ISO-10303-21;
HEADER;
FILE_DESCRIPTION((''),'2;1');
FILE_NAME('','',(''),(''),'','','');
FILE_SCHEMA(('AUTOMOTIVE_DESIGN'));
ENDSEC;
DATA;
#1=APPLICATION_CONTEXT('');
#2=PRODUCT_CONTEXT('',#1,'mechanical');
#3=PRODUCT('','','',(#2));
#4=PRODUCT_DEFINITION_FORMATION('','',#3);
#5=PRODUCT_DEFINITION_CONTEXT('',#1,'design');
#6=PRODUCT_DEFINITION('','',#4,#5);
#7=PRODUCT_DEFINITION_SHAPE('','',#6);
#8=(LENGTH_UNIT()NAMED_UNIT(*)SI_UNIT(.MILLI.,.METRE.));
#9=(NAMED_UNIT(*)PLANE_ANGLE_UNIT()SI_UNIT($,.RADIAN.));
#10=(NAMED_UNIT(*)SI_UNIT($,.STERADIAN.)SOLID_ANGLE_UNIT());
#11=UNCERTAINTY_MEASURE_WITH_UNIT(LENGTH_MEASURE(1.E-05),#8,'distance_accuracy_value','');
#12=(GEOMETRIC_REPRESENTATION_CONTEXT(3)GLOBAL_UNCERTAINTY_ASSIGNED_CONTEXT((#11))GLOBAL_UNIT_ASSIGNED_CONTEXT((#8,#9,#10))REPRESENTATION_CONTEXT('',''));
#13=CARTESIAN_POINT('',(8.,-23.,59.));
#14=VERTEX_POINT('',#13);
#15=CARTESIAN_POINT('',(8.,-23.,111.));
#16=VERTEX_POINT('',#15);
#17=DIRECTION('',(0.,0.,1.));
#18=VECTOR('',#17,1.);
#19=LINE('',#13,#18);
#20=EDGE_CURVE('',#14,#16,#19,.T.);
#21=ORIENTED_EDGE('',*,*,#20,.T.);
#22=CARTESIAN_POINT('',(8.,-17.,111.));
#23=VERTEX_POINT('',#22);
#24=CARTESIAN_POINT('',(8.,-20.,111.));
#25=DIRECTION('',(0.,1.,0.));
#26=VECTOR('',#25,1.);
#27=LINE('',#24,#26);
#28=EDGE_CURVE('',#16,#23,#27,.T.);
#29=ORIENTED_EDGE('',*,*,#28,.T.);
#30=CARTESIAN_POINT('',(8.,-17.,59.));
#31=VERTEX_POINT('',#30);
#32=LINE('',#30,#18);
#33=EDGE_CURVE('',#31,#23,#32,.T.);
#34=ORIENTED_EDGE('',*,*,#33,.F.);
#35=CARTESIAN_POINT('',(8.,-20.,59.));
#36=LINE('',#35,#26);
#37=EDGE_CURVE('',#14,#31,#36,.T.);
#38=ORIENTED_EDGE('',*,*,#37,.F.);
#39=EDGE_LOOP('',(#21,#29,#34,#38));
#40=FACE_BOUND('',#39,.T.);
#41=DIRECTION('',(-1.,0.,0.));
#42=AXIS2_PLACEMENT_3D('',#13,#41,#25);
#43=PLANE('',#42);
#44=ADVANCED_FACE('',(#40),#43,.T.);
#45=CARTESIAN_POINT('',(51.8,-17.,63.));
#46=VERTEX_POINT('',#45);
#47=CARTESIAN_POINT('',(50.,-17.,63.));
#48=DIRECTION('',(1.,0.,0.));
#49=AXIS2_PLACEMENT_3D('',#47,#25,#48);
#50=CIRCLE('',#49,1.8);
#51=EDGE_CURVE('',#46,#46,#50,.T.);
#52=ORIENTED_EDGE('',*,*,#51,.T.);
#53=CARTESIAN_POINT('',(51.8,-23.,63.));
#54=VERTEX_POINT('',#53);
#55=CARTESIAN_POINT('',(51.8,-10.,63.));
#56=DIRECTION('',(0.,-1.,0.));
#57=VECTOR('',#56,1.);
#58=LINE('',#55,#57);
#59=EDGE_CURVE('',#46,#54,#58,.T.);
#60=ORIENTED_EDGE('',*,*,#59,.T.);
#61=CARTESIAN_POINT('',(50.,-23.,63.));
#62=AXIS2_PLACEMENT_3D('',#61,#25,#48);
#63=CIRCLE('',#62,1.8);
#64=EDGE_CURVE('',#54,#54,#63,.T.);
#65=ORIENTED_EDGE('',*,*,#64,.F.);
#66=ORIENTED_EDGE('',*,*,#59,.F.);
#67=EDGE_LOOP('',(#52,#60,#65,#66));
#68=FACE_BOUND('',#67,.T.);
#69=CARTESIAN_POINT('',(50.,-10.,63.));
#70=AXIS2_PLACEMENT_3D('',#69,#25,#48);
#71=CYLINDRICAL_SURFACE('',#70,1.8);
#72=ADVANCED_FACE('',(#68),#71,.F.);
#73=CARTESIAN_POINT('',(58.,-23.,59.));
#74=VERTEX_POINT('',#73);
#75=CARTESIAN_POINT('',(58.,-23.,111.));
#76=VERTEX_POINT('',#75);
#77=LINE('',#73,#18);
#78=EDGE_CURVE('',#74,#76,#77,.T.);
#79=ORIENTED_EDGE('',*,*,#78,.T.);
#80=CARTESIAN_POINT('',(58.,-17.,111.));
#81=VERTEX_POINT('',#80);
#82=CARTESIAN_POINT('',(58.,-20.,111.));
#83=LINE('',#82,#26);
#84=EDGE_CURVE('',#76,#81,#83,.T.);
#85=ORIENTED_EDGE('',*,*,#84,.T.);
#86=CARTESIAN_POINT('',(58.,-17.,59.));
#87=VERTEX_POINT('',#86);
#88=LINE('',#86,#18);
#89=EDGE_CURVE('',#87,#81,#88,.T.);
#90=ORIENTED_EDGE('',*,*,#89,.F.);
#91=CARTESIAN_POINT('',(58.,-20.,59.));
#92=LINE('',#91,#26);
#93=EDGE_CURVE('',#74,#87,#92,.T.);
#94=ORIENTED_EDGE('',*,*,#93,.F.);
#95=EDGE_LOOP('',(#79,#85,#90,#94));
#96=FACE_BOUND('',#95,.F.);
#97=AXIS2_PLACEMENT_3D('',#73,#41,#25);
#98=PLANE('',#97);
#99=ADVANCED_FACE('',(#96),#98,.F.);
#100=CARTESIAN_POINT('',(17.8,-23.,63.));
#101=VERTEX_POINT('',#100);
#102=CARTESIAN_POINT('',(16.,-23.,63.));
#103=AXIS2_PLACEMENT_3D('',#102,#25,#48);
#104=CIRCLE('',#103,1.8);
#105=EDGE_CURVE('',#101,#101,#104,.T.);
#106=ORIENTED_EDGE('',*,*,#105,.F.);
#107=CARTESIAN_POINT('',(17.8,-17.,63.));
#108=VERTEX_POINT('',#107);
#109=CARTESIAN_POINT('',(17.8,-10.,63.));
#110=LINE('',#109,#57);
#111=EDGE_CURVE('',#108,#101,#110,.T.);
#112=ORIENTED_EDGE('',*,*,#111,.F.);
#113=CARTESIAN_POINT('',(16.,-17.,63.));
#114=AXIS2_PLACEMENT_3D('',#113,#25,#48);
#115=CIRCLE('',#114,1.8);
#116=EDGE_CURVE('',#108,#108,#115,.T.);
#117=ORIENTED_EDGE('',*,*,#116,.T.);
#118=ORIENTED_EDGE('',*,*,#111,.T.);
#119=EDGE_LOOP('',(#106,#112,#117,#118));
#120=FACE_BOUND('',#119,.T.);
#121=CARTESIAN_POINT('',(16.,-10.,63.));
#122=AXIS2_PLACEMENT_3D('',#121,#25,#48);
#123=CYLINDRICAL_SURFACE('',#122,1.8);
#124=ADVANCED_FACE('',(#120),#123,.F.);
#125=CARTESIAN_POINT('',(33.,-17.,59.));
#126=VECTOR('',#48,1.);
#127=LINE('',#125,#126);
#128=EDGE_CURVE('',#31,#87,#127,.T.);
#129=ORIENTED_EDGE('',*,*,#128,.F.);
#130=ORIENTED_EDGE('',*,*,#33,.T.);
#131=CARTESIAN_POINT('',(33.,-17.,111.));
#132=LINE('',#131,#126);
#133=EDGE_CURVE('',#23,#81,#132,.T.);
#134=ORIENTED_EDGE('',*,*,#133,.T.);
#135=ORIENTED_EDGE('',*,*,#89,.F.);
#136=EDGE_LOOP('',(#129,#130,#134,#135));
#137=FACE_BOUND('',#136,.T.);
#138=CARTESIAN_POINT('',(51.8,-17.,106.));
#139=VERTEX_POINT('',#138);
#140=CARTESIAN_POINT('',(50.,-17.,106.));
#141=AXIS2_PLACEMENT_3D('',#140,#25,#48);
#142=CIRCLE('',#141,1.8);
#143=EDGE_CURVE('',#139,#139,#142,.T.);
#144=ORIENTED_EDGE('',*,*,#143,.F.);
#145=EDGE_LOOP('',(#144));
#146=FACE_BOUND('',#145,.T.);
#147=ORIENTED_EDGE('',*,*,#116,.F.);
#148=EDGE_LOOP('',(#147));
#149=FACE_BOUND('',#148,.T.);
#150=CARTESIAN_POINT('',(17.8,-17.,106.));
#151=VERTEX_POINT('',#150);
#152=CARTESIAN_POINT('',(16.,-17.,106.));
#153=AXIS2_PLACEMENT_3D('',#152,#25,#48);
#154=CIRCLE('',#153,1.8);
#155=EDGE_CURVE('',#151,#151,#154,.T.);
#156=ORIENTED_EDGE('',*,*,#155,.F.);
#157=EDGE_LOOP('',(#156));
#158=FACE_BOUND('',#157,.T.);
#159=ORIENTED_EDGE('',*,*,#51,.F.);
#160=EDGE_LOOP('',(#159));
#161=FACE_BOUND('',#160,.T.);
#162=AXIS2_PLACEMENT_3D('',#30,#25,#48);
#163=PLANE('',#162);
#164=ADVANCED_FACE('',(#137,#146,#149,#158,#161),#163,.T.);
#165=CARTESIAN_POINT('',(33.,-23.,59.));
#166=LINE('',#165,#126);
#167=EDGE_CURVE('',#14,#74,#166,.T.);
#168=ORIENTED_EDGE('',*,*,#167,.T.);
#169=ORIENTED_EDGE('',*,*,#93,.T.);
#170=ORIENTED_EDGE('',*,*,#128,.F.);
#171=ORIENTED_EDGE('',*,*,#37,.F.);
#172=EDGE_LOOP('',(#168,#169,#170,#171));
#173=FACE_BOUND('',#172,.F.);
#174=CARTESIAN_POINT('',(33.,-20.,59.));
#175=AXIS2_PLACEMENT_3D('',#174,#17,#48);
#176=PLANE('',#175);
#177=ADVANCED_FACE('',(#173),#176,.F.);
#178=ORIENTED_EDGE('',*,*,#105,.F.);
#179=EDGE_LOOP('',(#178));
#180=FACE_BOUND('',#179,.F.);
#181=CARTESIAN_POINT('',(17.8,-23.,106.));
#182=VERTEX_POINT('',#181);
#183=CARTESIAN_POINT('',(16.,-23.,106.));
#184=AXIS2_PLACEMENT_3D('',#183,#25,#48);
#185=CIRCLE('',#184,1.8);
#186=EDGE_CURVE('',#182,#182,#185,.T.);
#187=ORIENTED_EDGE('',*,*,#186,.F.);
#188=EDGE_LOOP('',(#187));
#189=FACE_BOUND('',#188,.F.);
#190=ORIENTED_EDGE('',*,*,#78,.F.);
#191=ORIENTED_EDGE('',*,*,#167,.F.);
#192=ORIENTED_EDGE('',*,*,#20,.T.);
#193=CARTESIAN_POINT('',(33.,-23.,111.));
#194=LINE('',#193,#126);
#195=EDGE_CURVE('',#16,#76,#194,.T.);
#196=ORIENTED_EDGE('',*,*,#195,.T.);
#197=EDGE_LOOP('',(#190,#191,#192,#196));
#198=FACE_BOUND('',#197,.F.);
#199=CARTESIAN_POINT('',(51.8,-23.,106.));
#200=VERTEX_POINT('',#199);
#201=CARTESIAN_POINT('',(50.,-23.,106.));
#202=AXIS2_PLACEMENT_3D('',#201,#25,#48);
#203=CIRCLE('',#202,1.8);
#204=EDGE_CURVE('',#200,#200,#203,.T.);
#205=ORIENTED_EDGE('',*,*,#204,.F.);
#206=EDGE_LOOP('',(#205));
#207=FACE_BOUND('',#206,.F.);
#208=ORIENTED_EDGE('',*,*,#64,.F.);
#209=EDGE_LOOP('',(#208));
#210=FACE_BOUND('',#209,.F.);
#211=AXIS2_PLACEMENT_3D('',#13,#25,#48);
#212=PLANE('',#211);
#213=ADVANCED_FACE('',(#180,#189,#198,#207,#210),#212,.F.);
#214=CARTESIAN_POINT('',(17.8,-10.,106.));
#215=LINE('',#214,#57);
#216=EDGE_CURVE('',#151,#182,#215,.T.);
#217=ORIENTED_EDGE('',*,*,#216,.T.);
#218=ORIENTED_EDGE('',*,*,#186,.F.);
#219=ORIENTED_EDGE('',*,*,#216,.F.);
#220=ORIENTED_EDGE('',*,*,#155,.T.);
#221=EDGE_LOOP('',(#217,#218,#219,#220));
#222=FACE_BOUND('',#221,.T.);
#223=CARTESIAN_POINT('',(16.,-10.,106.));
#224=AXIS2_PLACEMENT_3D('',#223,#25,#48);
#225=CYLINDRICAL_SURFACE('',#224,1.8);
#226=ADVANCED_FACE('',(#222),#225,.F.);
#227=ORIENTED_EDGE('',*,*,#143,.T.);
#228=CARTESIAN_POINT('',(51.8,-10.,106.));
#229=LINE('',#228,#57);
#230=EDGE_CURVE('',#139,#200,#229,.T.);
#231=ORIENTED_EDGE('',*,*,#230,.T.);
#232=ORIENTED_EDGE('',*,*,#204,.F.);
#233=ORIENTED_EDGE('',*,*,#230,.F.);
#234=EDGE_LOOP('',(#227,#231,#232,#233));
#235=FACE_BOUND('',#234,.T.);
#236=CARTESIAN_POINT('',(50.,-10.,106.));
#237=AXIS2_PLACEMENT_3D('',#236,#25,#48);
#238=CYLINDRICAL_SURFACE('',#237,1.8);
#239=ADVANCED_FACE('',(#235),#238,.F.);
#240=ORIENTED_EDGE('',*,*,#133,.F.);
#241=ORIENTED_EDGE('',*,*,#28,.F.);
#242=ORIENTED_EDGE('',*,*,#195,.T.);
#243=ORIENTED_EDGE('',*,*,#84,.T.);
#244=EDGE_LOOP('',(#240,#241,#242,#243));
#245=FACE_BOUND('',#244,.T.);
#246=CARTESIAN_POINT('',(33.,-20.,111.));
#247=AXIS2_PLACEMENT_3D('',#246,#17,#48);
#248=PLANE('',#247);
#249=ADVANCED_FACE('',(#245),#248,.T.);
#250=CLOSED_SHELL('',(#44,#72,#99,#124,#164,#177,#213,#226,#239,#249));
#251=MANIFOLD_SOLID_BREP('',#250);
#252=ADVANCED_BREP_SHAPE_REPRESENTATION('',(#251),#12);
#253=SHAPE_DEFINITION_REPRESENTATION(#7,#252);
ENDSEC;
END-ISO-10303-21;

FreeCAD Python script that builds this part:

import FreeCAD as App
import Part
import Sketcher

V = App.Vector
Q = App.Units.Quantity

doc = App.newDocument("Part")
body = doc.addObject("PartDesign::Body", "Body")

# Sketch on XY plane
sketch1 = body.newObject("Sketcher::SketchObject", "Sketch")
sketch1.AttachmentSupport = (doc.getObject("XY_Plane"), [""])
sketch1.MapMode = "FlatFace"
sketch1.addGeometry(Part.Circle(V(0, 0, 0), V(0, 0, 1), 1.8), False)
sketch1.addConstraint(Sketcher.Constraint("Coincident", 0, 3, -1, 1))
sketch1.addConstraint(Sketcher.Constraint("Diameter", 0, Q("3.6 mm")))
pad1 = body.newObject("PartDesign::Pad", "Pad")
pad1.Profile = sketch1
pad1.Length = 34
body2 = doc.addObject("PartDesign::Body", "Body001")
doc.recompute()

body.Placement = App.Placement(V(0, 0, 0), App.Rotation(V(1, 0, 0), 90))
boolean = body2.newObject("PartDesign::Boolean", "Boolean")
boolean.Type = "Fuse"
boolean.addObjects([body])
body3 = doc.addObject("PartDesign::Body", "Body002")
doc.recompute()

body2.Placement = App.Placement(V(16, -10, 63), App.Rotation(V(0, 0, 1), 0))
boolean2 = body3.newObject("PartDesign::Boolean", "Boolean001")
boolean2.Type = "Fuse"
boolean2.addObjects([body2])
body4 = doc.addObject("PartDesign::Body", "Body003")

# Sketch on XY plane
sketch2 = body4.newObject("Sketcher::SketchObject", "Sketch001")
sketch2.AttachmentSupport = (doc.getObject("XY_Plane003"), [""])
sketch2.MapMode = "FlatFace"
sketch2.addGeometry(Part.Circle(V(0, 0, 0), V(0, 0, 1), 1.8), False)
sketch2.addConstraint(Sketcher.Constraint("Coincident", 0, 3, -1, 1))
sketch2.addConstraint(Sketcher.Constraint("Diameter", 0, Q("3.6 mm")))
pad2 = body4.newObject("PartDesign::Pad", "Pad001")
pad2.Profile = sketch2
pad2.Length = 34
body5 = doc.addObject("PartDesign::Body", "Body004")
doc.recompute()

body4.Placement = App.Placement(V(0, 0, 0), App.Rotation(V(1, 0, 0), 90))
boolean3 = body5.newObject("PartDesign::Boolean", "Boolean002")
boolean3.Type = "Fuse"
boolean3.addObjects([body4])
body6 = doc.addObject("PartDesign::Body", "Body005")
body6.AllowCompound = True
doc.recompute()

body5.Placement = App.Placement(V(50, -10, 63), App.Rotation(V(0, 0, 1), 0))
boolean4 = body6.newObject("PartDesign::Boolean", "Boolean003")
boolean4.Type = "Fuse"
boolean4.addObjects([body5])
doc.recompute()

boolean5 = body6.newObject("PartDesign::Boolean", "Boolean004")
boolean5.Type = "Fuse"
boolean5.addObjects([body3])
body7 = doc.addObject("PartDesign::Body", "Body006")

# Sketch on XY plane
sketch3 = body7.newObject("Sketcher::SketchObject", "Sketch002")
sketch3.AttachmentSupport = (doc.getObject("XY_Plane006"), [""])
sketch3.MapMode = "FlatFace"
sketch3.addGeometry(Part.Circle(V(0, 0, 0), V(0, 0, 1), 1.8), False)
sketch3.addConstraint(Sketcher.Constraint("Coincident", 0, 3, -1, 1))
sketch3.addConstraint(Sketcher.Constraint("Diameter", 0, Q("3.6 mm")))
pad3 = body7.newObject("PartDesign::Pad", "Pad002")
pad3.Profile = sketch3
pad3.Length = 34
body8 = doc.addObject("PartDesign::Body", "Body007")
doc.recompute()

body7.Placement = App.Placement(V(0, 0, 0), App.Rotation(V(1, 0, 0), 90))
boolean6 = body8.newObject("PartDesign::Boolean", "Boolean005")
boolean6.Type = "Fuse"
boolean6.addObjects([body7])
body9 = doc.addObject("PartDesign::Body", "Body008")
doc.recompute()

body8.Placement = App.Placement(V(16, -10, 63), App.Rotation(V(0, 0, 1), 0))
boolean7 = body9.newObject("PartDesign::Boolean", "Boolean006")
boolean7.Type = "Fuse"
boolean7.addObjects([body8])
body10 = doc.addObject("PartDesign::Body", "Body009")

# Sketch on XY plane
sketch4 = body10.newObject("Sketcher::SketchObject", "Sketch003")
sketch4.AttachmentSupport = (doc.getObject("XY_Plane009"), [""])
sketch4.MapMode = "FlatFace"
sketch4.addGeometry(Part.Circle(V(0, 0, 0), V(0, 0, 1), 1.8), False)
sketch4.addConstraint(Sketcher.Constraint("Coincident", 0, 3, -1, 1))
sketch4.addConstraint(Sketcher.Constraint("Diameter", 0, Q("3.6 mm")))
pad4 = body10.newObject("PartDesign::Pad", "Pad003")
pad4.Profile = sketch4
pad4.Length = 34
body11 = doc.addObject("PartDesign::Body", "Body010")
doc.recompute()

body10.Placement = App.Placement(V(0, 0, 0), App.Rotation(V(1, 0, 0), 90))
boolean8 = body11.newObject("PartDesign::Boolean", "Boolean007")
boolean8.Type = "Fuse"
boolean8.addObjects([body10])
body12 = doc.addObject("PartDesign::Body", "Body011")
body12.AllowCompound = True
doc.recompute()

body11.Placement = App.Placement(V(50, -10, 63), App.Rotation(V(0, 0, 1), 0))
boolean9 = body12.newObject("PartDesign::Boolean", "Boolean008")
boolean9.Type = "Fuse"
boolean9.addObjects([body11])
doc.recompute()

boolean10 = body12.newObject("PartDesign::Boolean", "Boolean009")
boolean10.Type = "Fuse"
boolean10.addObjects([body9])
body13 = doc.addObject("PartDesign::Body", "Body012")
body13.AllowCompound = True
doc.recompute()

body12.Placement = App.Placement(V(0, 0, 43), App.Rotation(V(0, 0, 1), 0))
boolean11 = body13.newObject("PartDesign::Boolean", "Boolean010")
boolean11.Type = "Fuse"
boolean11.addObjects([body12])
doc.recompute()

boolean12 = body13.newObject("PartDesign::Boolean", "Boolean011")
boolean12.Type = "Fuse"
boolean12.addObjects([body6])
body14 = doc.addObject("PartDesign::Body", "Body013")

# Sketch on XY plane
sketch5 = body14.newObject("Sketcher::SketchObject", "Sketch004")
sketch5.AttachmentSupport = (doc.getObject("XY_Plane013"), [""])
sketch5.MapMode = "FlatFace"
sketch5.AttachmentOffset = App.Placement(V(0, 0, 59), App.Rotation())
sketch5.addGeometry(Part.LineSegment(V(8, -17, 0), V(8, -23, 0)), False)
sketch5.addGeometry(Part.LineSegment(V(8, -23, 0), V(58, -23, 0)), False)
sketch5.addGeometry(Part.LineSegment(V(58, -23, 0), V(58, -17, 0)), False)
sketch5.addGeometry(Part.LineSegment(V(58, -17, 0), V(8, -17, 0)), False)
sketch5.addConstraint(Sketcher.Constraint("Coincident", 0, 2, 1, 1))
sketch5.addConstraint(Sketcher.Constraint("Coincident", 1, 2, 2, 1))
sketch5.addConstraint(Sketcher.Constraint("Coincident", 2, 2, 3, 1))
sketch5.addConstraint(Sketcher.Constraint("Coincident", 3, 2, 0, 1))
sketch5.addConstraint(Sketcher.Constraint("Vertical", 0))
sketch5.addConstraint(Sketcher.Constraint("Horizontal", 1))
sketch5.addConstraint(Sketcher.Constraint("Vertical", 2))
sketch5.addConstraint(Sketcher.Constraint("Horizontal", 3))
sketch5.addConstraint(Sketcher.Constraint("DistanceX", 1, 1, 1, 2, Q("50 mm")))
sketch5.addConstraint(Sketcher.Constraint("DistanceY", 0, 2, 0, 1, Q("6 mm")))
sketch5.addConstraint(Sketcher.Constraint("DistanceX", -1, 1, 0, 2, Q("8 mm")))
sketch5.addConstraint(Sketcher.Constraint("DistanceY", 0, 2, -1, 1, Q("23 mm")))
pad5 = body14.newObject("PartDesign::Pad", "Pad004")
pad5.Profile = sketch5
pad5.Length = 52
doc.recompute()

boolean13 = body14.newObject("PartDesign::Boolean", "Boolean012")
boolean13.Type = "Cut"
boolean13.addObjects([body13])

doc.recompute()
